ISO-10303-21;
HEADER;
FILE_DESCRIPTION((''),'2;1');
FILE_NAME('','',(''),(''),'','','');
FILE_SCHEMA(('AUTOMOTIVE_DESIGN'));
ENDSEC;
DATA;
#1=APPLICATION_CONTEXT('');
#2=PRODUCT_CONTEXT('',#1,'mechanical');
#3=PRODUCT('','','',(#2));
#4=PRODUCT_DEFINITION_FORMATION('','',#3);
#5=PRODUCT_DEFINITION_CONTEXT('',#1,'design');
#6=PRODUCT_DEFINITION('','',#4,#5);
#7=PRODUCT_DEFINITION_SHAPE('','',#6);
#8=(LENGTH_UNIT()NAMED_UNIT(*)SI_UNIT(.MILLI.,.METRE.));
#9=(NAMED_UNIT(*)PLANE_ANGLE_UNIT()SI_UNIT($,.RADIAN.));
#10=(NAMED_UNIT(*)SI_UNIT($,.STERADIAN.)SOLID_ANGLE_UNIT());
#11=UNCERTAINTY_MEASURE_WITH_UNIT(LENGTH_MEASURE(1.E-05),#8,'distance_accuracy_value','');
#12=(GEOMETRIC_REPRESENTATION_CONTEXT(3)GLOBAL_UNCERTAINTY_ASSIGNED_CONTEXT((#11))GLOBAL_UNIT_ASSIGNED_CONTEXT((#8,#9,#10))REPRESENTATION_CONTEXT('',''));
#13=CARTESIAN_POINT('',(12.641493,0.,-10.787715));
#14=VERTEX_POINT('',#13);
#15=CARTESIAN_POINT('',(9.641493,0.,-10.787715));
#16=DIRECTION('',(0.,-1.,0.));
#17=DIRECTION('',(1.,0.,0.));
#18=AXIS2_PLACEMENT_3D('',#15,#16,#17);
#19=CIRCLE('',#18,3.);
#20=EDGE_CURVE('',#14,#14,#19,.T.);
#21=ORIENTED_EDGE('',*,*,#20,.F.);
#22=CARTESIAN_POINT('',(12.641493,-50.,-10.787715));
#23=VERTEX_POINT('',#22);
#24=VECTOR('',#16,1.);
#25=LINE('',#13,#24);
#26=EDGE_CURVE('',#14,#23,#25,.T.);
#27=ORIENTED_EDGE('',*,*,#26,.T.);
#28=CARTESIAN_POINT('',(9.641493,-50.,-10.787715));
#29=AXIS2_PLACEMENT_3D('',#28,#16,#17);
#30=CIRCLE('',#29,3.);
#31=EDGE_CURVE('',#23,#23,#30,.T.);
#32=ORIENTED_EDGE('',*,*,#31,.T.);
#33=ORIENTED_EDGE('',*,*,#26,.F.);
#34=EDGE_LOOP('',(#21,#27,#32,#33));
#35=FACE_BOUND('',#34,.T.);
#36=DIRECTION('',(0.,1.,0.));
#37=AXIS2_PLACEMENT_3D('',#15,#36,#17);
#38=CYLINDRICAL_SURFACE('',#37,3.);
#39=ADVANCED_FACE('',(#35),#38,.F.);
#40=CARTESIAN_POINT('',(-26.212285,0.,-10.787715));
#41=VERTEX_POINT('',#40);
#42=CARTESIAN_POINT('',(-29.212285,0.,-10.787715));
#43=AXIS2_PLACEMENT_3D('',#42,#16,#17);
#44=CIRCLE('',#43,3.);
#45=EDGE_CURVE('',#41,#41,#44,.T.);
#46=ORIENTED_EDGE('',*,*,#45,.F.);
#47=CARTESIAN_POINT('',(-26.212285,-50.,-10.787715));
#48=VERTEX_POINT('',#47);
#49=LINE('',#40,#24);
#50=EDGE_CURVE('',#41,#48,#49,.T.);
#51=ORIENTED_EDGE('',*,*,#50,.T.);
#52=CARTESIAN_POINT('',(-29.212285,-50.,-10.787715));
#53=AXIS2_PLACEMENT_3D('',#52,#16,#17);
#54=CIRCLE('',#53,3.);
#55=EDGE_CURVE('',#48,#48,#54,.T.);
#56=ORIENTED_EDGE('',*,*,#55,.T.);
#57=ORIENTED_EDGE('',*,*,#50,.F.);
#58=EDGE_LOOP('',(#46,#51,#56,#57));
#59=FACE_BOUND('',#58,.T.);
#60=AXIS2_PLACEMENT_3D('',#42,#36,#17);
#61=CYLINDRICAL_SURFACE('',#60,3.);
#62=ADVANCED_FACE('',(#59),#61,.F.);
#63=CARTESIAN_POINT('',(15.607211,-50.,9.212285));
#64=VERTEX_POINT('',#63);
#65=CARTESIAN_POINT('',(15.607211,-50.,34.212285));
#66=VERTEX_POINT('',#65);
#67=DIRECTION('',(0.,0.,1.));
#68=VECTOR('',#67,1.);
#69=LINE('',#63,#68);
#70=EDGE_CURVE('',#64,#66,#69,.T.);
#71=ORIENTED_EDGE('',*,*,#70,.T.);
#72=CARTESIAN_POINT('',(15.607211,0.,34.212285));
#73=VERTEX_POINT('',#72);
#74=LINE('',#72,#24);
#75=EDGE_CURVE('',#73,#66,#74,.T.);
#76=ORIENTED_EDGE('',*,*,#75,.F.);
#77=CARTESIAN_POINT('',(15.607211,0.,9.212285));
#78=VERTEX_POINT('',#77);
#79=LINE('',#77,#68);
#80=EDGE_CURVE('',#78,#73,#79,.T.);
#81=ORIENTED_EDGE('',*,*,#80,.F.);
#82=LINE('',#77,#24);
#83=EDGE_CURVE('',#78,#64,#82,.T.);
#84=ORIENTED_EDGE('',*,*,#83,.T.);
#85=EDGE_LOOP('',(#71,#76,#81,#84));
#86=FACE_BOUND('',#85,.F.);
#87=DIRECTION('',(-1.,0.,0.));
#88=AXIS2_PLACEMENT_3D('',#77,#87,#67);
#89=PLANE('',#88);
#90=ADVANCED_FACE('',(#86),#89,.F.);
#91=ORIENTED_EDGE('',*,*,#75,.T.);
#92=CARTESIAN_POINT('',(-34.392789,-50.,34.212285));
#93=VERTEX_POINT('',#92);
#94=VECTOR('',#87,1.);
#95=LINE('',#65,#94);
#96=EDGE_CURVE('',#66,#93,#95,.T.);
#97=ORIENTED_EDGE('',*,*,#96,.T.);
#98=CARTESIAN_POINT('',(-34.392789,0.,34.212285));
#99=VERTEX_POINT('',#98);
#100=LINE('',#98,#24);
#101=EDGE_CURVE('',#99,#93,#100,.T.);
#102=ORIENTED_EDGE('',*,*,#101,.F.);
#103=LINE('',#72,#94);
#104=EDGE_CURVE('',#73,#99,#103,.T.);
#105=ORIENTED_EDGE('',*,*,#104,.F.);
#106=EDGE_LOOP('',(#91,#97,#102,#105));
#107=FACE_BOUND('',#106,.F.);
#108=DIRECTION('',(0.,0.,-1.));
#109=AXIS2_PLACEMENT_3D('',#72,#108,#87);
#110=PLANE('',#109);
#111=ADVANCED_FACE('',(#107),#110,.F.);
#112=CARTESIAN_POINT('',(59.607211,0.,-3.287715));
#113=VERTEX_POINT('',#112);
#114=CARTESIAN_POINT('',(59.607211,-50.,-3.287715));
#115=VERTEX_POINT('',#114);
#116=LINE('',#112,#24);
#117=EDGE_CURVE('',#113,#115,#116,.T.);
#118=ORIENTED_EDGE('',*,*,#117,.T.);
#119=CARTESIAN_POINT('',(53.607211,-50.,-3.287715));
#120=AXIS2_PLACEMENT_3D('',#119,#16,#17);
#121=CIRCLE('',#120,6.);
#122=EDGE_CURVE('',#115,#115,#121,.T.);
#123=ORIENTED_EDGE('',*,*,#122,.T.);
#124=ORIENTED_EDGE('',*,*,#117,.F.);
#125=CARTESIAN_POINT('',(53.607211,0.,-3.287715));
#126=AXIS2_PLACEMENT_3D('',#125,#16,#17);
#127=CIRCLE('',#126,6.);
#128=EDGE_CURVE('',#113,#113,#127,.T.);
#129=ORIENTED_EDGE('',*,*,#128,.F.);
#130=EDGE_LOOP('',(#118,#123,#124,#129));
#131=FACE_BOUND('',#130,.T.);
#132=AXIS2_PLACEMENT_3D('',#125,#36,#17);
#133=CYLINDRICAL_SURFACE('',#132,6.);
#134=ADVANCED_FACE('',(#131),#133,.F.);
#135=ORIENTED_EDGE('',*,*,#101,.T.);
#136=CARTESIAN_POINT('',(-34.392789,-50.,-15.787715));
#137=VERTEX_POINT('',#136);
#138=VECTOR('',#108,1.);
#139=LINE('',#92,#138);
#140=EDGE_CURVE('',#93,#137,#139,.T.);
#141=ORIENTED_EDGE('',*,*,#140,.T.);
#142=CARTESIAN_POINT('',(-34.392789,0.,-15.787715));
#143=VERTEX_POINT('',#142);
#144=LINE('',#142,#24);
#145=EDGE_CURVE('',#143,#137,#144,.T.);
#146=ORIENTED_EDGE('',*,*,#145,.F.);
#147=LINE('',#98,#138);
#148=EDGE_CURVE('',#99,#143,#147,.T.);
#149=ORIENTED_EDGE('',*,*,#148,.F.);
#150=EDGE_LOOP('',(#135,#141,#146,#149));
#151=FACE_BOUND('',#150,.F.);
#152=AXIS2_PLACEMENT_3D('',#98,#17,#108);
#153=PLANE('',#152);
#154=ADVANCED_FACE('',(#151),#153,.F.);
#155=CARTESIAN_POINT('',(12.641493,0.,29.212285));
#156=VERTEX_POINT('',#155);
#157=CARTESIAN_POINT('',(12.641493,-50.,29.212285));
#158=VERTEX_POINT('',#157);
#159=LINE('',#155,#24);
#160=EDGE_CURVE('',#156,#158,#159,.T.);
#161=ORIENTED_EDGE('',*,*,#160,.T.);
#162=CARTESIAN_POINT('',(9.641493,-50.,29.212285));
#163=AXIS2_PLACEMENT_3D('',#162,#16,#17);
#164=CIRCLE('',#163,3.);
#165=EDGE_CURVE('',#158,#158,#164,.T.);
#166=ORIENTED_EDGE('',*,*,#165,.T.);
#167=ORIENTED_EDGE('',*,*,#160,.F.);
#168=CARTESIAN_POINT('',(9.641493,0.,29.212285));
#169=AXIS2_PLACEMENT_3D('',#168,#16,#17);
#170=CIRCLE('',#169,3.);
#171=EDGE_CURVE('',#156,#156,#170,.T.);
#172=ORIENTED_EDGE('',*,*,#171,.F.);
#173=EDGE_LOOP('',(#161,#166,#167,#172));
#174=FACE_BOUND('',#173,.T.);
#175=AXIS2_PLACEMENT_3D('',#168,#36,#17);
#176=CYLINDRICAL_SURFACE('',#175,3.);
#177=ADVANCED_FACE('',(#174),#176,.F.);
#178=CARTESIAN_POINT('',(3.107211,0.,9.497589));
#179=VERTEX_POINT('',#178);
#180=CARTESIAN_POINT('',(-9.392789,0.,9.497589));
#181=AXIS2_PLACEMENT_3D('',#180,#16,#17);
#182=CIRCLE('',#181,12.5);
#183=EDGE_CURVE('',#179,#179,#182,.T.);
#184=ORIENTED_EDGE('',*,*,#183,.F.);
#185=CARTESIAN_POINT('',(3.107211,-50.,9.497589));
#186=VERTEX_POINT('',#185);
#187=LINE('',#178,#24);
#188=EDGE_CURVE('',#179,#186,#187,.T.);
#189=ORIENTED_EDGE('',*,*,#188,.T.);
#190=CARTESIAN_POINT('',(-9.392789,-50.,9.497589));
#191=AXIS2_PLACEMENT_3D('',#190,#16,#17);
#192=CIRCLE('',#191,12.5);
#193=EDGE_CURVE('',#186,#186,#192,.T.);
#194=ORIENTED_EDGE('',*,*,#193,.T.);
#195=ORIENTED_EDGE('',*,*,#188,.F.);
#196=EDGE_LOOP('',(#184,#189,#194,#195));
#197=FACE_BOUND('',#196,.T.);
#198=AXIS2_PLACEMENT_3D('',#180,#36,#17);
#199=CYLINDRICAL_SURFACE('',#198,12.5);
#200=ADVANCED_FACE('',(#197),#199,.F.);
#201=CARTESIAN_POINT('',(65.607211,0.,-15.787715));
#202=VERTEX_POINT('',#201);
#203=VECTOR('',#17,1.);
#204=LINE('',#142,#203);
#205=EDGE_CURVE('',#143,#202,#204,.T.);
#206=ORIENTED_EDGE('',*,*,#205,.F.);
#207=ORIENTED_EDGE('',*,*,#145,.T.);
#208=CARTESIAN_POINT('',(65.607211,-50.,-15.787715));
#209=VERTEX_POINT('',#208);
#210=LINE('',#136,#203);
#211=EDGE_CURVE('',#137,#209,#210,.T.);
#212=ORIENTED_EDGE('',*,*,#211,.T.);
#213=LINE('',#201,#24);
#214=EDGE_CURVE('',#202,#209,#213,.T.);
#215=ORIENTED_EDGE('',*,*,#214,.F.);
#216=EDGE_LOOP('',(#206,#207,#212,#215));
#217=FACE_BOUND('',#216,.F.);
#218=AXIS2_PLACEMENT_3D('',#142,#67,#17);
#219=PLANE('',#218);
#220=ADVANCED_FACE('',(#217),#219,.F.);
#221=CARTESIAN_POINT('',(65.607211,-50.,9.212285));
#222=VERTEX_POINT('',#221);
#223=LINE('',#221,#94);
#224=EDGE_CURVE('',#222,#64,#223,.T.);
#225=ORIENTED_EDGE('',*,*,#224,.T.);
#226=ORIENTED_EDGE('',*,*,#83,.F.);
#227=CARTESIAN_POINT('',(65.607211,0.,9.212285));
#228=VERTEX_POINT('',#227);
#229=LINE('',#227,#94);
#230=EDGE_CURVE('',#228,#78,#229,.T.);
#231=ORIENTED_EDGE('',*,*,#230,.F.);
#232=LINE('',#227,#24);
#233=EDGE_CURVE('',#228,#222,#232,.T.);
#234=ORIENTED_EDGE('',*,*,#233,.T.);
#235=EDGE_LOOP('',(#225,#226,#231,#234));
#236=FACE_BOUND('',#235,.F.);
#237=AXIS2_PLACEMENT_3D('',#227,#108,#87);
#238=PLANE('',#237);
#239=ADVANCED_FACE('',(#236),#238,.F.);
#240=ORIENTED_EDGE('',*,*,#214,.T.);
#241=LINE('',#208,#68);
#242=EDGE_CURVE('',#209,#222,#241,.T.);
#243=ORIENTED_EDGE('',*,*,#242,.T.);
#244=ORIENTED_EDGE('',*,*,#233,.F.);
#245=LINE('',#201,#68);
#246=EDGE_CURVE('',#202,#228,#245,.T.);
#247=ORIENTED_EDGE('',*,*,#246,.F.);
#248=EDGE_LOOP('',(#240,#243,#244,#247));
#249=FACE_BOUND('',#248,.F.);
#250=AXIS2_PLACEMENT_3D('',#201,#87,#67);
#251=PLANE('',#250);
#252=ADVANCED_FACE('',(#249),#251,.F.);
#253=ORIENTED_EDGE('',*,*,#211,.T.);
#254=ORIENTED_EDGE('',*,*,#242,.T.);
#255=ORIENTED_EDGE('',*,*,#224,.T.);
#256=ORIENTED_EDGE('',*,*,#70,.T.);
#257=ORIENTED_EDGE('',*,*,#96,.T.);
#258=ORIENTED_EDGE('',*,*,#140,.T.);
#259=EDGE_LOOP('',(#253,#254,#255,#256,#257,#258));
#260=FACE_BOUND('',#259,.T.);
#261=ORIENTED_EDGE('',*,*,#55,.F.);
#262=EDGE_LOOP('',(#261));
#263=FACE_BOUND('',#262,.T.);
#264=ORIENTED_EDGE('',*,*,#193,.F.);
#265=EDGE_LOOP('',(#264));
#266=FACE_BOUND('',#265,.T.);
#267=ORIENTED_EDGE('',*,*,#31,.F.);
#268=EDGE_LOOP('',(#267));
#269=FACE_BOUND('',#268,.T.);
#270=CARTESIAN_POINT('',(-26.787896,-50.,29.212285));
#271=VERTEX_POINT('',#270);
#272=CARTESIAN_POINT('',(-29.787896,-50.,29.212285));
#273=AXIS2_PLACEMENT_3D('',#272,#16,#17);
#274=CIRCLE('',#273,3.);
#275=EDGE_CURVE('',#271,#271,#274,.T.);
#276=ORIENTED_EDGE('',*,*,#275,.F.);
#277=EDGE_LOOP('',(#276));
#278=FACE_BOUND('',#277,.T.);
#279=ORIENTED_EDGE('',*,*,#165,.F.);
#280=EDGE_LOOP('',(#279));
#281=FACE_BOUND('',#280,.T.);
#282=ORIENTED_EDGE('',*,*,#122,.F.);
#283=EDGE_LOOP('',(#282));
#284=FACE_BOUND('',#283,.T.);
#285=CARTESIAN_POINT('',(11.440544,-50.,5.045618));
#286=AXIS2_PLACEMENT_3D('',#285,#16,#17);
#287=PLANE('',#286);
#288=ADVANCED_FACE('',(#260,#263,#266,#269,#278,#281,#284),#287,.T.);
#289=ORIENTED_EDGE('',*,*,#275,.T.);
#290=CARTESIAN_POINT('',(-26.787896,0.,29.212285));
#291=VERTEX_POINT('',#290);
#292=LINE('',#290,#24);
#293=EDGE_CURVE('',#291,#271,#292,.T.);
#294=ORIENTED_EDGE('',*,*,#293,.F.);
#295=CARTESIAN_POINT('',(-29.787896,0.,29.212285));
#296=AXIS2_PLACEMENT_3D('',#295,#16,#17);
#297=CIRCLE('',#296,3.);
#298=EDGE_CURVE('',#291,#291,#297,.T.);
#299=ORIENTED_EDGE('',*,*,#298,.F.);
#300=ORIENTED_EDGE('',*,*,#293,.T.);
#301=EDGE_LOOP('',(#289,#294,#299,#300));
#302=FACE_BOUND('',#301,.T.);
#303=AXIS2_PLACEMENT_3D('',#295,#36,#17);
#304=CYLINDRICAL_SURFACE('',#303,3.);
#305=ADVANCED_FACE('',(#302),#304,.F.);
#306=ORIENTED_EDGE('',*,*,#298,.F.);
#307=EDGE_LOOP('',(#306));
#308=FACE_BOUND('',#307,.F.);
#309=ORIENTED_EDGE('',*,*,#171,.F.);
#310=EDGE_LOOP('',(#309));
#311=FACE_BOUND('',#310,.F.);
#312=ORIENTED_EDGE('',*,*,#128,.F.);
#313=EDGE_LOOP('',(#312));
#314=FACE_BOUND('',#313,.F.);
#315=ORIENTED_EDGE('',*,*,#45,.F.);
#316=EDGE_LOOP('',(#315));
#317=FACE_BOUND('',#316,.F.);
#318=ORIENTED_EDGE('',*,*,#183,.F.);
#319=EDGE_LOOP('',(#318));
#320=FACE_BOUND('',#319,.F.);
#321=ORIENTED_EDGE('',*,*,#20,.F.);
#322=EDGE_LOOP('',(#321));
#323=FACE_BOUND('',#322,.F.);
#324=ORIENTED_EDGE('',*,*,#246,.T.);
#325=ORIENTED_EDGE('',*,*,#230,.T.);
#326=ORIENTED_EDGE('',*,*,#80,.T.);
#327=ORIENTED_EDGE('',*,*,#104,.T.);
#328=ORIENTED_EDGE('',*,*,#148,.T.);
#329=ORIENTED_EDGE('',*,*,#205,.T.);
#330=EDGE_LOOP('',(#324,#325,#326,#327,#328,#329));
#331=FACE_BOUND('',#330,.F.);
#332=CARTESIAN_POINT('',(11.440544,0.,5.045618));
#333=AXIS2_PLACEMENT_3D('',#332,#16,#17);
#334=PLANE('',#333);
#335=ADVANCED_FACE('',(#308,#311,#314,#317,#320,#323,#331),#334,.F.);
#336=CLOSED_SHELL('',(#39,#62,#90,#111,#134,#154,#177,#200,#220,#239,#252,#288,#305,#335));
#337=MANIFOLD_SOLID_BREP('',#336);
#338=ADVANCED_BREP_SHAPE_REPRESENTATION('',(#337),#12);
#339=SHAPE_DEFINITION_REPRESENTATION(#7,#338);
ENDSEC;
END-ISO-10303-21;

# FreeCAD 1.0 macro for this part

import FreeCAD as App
import Part
import Sketcher
from FreeCAD import Vector

doc = App.newDocument("Part")
body = doc.addObject("PartDesign::Body", "Body")

sketch1 = doc.addObject("Sketcher::SketchObject", "Sketch")
body.addObject(sketch1)
sketch1.AttachmentSupport = (doc.XZ_Plane, [""])
sketch1.MapMode = "FlatFace"
sketch1.addGeometry([
    Part.LineSegment(Vector(15.6, 34.2, 0), Vector(-34.4, 34.2, 0)),
    Part.LineSegment(Vector(-34.4, 34.2, 0), Vector(-34.4, -15.8, 0)),
    Part.LineSegment(Vector(-34.4, -15.8, 0), Vector(65.6, -15.8, 0)),
    Part.LineSegment(Vector(65.6, -15.8, 0), Vector(65.6, 9.2, 0)),
    Part.LineSegment(Vector(65.6, 9.2, 0), Vector(15.6, 9.2, 0)),
    Part.LineSegment(Vector(15.6, 9.2, 0), Vector(15.6, 34.2, 0)),
    Part.Circle(Vector(-29.2, -10.8, 0), Vector(0, 0, 1), 3),
    Part.Circle(Vector(9.6, -10.8, 0), Vector(0, 0, 1), 3),
    Part.Circle(Vector(53.6, -3.3, 0), Vector(0, 0, 1), 6),
    Part.Circle(Vector(-9.4, 9.5, 0), Vector(0, 0, 1), 12.5),
    Part.Circle(Vector(-29.8, 29.2, 0), Vector(0, 0, 1), 3),
    Part.Circle(Vector(9.6, 29.2, 0), Vector(0, 0, 1), 3),
], False)
sketch1.addConstraint([
    Sketcher.Constraint("Coincident", 0, 2, 1, 1),
    Sketcher.Constraint("Coincident", 1, 2, 2, 1),
    Sketcher.Constraint("Coincident", 2, 2, 3, 1),
    Sketcher.Constraint("Coincident", 3, 2, 4, 1),
    Sketcher.Constraint("Coincident", 4, 2, 5, 1),
    Sketcher.Constraint("Coincident", 5, 2, 0, 1),
    Sketcher.Constraint("Horizontal", 0),
    Sketcher.Constraint("Vertical", 1),
    Sketcher.Constraint("Horizontal", 2),
    Sketcher.Constraint("Vertical", 3),
    Sketcher.Constraint("Horizontal", 4),
    Sketcher.Constraint("Vertical", 5),
    Sketcher.Constraint("Equal", 6, 7),
    Sketcher.Constraint("Equal", 7, 10),
    Sketcher.Constraint("Equal", 10, 11),
    Sketcher.Constraint("Horizontal", 6, 3, 7, 3),
    Sketcher.Constraint("Horizontal", 10, 3, 11, 3),
    Sketcher.Constraint("Vertical", 7, 3, 11, 3),
    Sketcher.Constraint("Equal", 0, 4),
    Sketcher.Constraint("Equal", 4, 1),
    Sketcher.Constraint("Equal", 3, 5),
    Sketcher.Constraint("Diameter", 6, 6.0),
    Sketcher.Constraint("Diameter", 8, 12.0),
    Sketcher.Constraint("Diameter", 9, 25.0),
    Sketcher.Constraint("DistanceX", 0, 2, 0, 1, 50.0),
    Sketcher.Constraint("DistanceX", 9, 3, 8, 3, 63.0),
    Sketcher.Constraint("DistanceY", 6, 3, 10, 3, 40.0),
    Sketcher.Constraint("DistanceY", 10, 3, 0, 2, 5.0),
    Sketcher.Constraint("DistanceX", 0, 2, 9, 3, 25.0),
    Sketcher.Constraint("DistanceY", 7, 3, 8, 3, 7.5),
    Sketcher.Constraint("DistanceX", -1, 1, 8, 3, 53.607211),
    Sketcher.Constraint("DistanceY", -1, 1, 9, 3, 9.497589),
    Sketcher.Constraint("DistanceX", 6, 3, 7, 3, 38.853778),
    Sketcher.Constraint("DistanceX", 10, 3, 6, 3, 0.575611),
    Sketcher.Constraint("DistanceX", 7, 3, 2, 2, 55.965718),
    Sketcher.Constraint("DistanceY", 6, 3, -1, 1, 10.787715),
])
pad1 = doc.addObject("PartDesign::Pad", "Pad")
body.addObject(pad1)
pad1.Profile = sketch1
pad1.Length = 50

doc.recompute()
